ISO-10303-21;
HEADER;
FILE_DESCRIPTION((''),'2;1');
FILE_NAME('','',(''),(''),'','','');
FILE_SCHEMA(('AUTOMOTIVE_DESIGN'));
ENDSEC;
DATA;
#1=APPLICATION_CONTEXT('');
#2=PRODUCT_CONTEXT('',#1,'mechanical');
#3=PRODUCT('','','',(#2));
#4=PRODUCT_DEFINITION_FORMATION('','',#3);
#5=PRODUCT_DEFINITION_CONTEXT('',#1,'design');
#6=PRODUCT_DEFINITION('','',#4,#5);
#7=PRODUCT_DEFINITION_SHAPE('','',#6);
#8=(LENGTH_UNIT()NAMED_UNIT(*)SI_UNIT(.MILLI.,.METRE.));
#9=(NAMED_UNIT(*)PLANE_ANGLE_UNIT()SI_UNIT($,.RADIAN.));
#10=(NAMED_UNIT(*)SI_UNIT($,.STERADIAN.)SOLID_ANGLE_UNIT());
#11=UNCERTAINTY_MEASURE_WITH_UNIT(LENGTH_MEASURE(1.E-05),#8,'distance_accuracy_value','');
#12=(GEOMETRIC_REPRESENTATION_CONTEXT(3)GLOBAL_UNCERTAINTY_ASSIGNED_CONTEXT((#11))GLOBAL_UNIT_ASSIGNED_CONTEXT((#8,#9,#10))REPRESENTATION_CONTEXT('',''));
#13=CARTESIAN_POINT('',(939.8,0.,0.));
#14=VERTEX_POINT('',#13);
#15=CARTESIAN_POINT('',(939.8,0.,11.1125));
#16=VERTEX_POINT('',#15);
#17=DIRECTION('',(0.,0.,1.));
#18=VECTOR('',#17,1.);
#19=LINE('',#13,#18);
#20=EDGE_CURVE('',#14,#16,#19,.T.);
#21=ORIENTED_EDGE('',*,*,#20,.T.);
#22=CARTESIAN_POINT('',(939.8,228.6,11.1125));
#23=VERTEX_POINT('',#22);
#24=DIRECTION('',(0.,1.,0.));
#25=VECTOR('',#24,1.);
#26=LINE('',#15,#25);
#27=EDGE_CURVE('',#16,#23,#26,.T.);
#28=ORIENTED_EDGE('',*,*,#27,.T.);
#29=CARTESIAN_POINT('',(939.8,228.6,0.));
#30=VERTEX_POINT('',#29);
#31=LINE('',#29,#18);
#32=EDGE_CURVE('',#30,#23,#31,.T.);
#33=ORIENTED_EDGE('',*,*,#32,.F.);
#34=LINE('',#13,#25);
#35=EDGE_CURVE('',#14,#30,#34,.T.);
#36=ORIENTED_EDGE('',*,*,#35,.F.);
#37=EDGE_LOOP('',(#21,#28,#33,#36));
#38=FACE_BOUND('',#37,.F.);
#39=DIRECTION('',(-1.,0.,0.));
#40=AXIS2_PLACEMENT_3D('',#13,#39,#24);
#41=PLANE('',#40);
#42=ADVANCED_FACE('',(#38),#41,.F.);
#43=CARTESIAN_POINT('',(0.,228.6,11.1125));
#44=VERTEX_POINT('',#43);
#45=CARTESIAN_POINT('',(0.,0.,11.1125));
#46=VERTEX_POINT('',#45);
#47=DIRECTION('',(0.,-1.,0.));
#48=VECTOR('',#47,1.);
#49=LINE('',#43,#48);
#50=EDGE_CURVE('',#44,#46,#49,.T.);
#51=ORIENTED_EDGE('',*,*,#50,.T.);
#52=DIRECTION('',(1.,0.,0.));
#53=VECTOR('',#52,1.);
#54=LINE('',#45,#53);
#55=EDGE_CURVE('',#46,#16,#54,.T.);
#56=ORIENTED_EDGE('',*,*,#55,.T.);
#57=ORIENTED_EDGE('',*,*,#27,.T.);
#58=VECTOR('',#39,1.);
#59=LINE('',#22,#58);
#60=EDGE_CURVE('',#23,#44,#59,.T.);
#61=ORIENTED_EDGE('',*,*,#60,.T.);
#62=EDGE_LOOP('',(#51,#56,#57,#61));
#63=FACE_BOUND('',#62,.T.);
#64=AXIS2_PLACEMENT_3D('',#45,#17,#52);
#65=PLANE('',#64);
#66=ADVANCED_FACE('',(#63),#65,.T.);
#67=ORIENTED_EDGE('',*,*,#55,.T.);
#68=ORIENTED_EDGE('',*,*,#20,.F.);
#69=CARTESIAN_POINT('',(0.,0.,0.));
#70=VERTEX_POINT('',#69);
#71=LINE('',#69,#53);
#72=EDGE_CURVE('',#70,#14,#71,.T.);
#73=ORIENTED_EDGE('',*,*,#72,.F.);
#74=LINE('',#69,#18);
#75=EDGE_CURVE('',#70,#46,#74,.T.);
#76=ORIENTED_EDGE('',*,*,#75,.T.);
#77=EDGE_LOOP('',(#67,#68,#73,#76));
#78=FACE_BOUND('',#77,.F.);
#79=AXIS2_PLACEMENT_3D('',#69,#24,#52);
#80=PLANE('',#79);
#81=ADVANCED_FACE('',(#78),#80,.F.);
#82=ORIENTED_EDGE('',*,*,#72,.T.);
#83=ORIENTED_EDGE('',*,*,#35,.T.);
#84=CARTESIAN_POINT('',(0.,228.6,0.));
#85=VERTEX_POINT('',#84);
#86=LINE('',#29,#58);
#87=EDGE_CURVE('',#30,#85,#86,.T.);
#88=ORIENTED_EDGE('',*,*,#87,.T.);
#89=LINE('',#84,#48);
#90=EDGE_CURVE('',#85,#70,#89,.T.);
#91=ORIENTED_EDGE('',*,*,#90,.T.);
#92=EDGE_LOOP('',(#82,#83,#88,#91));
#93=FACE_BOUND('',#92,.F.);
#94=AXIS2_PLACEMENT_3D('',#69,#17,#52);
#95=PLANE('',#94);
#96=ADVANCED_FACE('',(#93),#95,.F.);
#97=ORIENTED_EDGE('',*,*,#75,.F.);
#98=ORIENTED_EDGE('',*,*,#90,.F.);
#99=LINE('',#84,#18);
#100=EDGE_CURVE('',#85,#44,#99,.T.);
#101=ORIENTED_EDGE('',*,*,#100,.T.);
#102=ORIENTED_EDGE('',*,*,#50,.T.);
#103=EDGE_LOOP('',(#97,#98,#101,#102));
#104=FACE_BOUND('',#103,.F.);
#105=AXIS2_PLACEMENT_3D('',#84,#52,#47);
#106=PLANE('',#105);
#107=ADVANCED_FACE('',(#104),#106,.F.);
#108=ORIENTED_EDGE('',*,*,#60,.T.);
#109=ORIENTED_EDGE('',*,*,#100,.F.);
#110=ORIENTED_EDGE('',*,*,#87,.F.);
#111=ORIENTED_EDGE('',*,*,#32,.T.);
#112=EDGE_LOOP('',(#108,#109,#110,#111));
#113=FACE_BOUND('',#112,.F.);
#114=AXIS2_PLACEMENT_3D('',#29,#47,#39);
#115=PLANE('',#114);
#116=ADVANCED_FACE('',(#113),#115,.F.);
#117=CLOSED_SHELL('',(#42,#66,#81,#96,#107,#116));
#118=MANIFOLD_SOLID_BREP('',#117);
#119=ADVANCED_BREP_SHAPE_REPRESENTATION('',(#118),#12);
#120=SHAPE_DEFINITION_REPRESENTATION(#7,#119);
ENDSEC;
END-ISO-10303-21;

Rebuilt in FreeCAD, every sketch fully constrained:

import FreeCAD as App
import Part
import Sketcher

V = App.Vector
Q = App.Units.Quantity


def add_polygon(sketch, points):
    """Adds a closed chain of lines whose ends are joined by coincident constraints."""
    first, n = sketch.GeometryCount, len(points)
    for a, b in zip(points, points[1:] + points[:1]):
        sketch.addGeometry(Part.LineSegment(App.Vector(*a, 0), App.Vector(*b, 0)), False)
    for i in range(n):
        sketch.addConstraint(Sketcher.Constraint("Coincident", first + i, 2, first + (i + 1) % n, 1))

doc = App.newDocument("Part")
body = doc.addObject("PartDesign::Body", "Body")

sketch1 = body.newObject("Sketcher::SketchObject", "Sketch")
sketch1.AttachmentSupport = (doc.getObject("XY_Plane"), [""])
sketch1.MapMode = "FlatFace"
add_polygon(sketch1, [(0, 228.6), (0, 0), (939.8, 0), (939.8, 228.6)])
sketch1.addConstraint([
    Sketcher.Constraint("Vertical", 0),
    Sketcher.Constraint("Horizontal", 1),
    Sketcher.Constraint("Vertical", 2),
    Sketcher.Constraint("Horizontal", 3),
    Sketcher.Constraint("Coincident", 0, 2, -1, 1),
    Sketcher.Constraint("DistanceX", 1, 1, 1, 2, Q("37 in")),
    Sketcher.Constraint("DistanceY", 0, 2, 0, 1, Q("9 in")),
])
pad1 = body.newObject("PartDesign::Pad", "Pad")
pad1.Profile = sketch1
pad1.Length = Q("0.4375 in")

doc.recompute()
